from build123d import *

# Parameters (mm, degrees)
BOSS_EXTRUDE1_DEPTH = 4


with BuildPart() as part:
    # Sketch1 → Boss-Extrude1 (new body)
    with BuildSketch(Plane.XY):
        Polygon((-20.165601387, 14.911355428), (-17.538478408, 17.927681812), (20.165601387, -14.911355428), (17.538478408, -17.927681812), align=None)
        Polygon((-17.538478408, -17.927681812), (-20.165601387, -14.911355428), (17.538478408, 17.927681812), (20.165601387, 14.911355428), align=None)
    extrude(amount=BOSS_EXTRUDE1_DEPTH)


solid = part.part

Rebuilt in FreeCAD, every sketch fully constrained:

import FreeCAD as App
import Part
import Sketcher
from FreeCAD import Vector
Q = App.Units.Quantity


def add_polygon(sketch, points):
    """Adds a closed chain of lines whose ends are joined by coincident constraints."""
    first, n = sketch.GeometryCount, len(points)
    for a, b in zip(points, points[1:] + points[:1]):
        sketch.addGeometry(Part.LineSegment(App.Vector(*a, 0), App.Vector(*b, 0)), False)
    for i in range(n):
        sketch.addConstraint(Sketcher.Constraint("Coincident", first + i, 2, first + (i + 1) % n, 1))

doc = App.newDocument("Part")
body = doc.addObject("PartDesign::Body", "Body")

sketch1 = body.newObject("Sketcher::SketchObject", "Sketch")
sketch1.AttachmentSupport = (doc.getObject("XY_Plane"), [""])
sketch1.MapMode = "FlatFace"
add_polygon(sketch1, [(-20.165601, 14.911355), (-3.045156, 0), (-20.165601, -14.911355), (-17.538478, -17.927682), (0, -2.652233), (17.538478, -17.927682), (20.165601, -14.911355), (3.045156, 0), (20.165601, 14.911355), (17.538478, 17.927682), (0, 2.652233), (-17.538478, 17.927682)])
sketch1.addConstraint([
    Sketcher.Constraint("Symmetric", 0, 2, 6, 2, -1, 1),
    Sketcher.Constraint("Symmetric", 1, 2, 7, 2, -1, 1),
    Sketcher.Constraint("Symmetric", 2, 2, 8, 2, -1, 1),
    Sketcher.Constraint("Symmetric", 3, 2, 9, 2, -1, 1),
    Sketcher.Constraint("Symmetric", 4, 2, 10, 2, -1, 1),
    Sketcher.Constraint("Symmetric", 5, 2, 11, 2, -1, 1),
    Sketcher.Constraint("Symmetric", 2, 2, 4, 2, -2),
    Sketcher.Constraint("Symmetric", 1, 2, 5, 2, -2),
    Sketcher.Constraint("PointOnObject", 0, 2, -1),
    Sketcher.Constraint("PointOnObject", 3, 2, -2),
    Sketcher.Constraint("Perpendicular", 1, 2),
    Sketcher.Constraint("Perpendicular", 2, 3),
    Sketcher.Constraint("Distance", 2, Q("4 mm")),
    Sketcher.Constraint("DistanceX", 1, 2, -1, 1, Q("20.165601 mm")),
    Sketcher.Constraint("DistanceX", 2, 2, -1, 1, Q("17.538478 mm")),
    Sketcher.Constraint("DistanceY", 2, 2, -1, 1, Q("17.927682 mm")),
])
pad1 = body.newObject("PartDesign::Pad", "Pad")
pad1.Profile = sketch1
pad1.Length = 4

doc.recompute()
